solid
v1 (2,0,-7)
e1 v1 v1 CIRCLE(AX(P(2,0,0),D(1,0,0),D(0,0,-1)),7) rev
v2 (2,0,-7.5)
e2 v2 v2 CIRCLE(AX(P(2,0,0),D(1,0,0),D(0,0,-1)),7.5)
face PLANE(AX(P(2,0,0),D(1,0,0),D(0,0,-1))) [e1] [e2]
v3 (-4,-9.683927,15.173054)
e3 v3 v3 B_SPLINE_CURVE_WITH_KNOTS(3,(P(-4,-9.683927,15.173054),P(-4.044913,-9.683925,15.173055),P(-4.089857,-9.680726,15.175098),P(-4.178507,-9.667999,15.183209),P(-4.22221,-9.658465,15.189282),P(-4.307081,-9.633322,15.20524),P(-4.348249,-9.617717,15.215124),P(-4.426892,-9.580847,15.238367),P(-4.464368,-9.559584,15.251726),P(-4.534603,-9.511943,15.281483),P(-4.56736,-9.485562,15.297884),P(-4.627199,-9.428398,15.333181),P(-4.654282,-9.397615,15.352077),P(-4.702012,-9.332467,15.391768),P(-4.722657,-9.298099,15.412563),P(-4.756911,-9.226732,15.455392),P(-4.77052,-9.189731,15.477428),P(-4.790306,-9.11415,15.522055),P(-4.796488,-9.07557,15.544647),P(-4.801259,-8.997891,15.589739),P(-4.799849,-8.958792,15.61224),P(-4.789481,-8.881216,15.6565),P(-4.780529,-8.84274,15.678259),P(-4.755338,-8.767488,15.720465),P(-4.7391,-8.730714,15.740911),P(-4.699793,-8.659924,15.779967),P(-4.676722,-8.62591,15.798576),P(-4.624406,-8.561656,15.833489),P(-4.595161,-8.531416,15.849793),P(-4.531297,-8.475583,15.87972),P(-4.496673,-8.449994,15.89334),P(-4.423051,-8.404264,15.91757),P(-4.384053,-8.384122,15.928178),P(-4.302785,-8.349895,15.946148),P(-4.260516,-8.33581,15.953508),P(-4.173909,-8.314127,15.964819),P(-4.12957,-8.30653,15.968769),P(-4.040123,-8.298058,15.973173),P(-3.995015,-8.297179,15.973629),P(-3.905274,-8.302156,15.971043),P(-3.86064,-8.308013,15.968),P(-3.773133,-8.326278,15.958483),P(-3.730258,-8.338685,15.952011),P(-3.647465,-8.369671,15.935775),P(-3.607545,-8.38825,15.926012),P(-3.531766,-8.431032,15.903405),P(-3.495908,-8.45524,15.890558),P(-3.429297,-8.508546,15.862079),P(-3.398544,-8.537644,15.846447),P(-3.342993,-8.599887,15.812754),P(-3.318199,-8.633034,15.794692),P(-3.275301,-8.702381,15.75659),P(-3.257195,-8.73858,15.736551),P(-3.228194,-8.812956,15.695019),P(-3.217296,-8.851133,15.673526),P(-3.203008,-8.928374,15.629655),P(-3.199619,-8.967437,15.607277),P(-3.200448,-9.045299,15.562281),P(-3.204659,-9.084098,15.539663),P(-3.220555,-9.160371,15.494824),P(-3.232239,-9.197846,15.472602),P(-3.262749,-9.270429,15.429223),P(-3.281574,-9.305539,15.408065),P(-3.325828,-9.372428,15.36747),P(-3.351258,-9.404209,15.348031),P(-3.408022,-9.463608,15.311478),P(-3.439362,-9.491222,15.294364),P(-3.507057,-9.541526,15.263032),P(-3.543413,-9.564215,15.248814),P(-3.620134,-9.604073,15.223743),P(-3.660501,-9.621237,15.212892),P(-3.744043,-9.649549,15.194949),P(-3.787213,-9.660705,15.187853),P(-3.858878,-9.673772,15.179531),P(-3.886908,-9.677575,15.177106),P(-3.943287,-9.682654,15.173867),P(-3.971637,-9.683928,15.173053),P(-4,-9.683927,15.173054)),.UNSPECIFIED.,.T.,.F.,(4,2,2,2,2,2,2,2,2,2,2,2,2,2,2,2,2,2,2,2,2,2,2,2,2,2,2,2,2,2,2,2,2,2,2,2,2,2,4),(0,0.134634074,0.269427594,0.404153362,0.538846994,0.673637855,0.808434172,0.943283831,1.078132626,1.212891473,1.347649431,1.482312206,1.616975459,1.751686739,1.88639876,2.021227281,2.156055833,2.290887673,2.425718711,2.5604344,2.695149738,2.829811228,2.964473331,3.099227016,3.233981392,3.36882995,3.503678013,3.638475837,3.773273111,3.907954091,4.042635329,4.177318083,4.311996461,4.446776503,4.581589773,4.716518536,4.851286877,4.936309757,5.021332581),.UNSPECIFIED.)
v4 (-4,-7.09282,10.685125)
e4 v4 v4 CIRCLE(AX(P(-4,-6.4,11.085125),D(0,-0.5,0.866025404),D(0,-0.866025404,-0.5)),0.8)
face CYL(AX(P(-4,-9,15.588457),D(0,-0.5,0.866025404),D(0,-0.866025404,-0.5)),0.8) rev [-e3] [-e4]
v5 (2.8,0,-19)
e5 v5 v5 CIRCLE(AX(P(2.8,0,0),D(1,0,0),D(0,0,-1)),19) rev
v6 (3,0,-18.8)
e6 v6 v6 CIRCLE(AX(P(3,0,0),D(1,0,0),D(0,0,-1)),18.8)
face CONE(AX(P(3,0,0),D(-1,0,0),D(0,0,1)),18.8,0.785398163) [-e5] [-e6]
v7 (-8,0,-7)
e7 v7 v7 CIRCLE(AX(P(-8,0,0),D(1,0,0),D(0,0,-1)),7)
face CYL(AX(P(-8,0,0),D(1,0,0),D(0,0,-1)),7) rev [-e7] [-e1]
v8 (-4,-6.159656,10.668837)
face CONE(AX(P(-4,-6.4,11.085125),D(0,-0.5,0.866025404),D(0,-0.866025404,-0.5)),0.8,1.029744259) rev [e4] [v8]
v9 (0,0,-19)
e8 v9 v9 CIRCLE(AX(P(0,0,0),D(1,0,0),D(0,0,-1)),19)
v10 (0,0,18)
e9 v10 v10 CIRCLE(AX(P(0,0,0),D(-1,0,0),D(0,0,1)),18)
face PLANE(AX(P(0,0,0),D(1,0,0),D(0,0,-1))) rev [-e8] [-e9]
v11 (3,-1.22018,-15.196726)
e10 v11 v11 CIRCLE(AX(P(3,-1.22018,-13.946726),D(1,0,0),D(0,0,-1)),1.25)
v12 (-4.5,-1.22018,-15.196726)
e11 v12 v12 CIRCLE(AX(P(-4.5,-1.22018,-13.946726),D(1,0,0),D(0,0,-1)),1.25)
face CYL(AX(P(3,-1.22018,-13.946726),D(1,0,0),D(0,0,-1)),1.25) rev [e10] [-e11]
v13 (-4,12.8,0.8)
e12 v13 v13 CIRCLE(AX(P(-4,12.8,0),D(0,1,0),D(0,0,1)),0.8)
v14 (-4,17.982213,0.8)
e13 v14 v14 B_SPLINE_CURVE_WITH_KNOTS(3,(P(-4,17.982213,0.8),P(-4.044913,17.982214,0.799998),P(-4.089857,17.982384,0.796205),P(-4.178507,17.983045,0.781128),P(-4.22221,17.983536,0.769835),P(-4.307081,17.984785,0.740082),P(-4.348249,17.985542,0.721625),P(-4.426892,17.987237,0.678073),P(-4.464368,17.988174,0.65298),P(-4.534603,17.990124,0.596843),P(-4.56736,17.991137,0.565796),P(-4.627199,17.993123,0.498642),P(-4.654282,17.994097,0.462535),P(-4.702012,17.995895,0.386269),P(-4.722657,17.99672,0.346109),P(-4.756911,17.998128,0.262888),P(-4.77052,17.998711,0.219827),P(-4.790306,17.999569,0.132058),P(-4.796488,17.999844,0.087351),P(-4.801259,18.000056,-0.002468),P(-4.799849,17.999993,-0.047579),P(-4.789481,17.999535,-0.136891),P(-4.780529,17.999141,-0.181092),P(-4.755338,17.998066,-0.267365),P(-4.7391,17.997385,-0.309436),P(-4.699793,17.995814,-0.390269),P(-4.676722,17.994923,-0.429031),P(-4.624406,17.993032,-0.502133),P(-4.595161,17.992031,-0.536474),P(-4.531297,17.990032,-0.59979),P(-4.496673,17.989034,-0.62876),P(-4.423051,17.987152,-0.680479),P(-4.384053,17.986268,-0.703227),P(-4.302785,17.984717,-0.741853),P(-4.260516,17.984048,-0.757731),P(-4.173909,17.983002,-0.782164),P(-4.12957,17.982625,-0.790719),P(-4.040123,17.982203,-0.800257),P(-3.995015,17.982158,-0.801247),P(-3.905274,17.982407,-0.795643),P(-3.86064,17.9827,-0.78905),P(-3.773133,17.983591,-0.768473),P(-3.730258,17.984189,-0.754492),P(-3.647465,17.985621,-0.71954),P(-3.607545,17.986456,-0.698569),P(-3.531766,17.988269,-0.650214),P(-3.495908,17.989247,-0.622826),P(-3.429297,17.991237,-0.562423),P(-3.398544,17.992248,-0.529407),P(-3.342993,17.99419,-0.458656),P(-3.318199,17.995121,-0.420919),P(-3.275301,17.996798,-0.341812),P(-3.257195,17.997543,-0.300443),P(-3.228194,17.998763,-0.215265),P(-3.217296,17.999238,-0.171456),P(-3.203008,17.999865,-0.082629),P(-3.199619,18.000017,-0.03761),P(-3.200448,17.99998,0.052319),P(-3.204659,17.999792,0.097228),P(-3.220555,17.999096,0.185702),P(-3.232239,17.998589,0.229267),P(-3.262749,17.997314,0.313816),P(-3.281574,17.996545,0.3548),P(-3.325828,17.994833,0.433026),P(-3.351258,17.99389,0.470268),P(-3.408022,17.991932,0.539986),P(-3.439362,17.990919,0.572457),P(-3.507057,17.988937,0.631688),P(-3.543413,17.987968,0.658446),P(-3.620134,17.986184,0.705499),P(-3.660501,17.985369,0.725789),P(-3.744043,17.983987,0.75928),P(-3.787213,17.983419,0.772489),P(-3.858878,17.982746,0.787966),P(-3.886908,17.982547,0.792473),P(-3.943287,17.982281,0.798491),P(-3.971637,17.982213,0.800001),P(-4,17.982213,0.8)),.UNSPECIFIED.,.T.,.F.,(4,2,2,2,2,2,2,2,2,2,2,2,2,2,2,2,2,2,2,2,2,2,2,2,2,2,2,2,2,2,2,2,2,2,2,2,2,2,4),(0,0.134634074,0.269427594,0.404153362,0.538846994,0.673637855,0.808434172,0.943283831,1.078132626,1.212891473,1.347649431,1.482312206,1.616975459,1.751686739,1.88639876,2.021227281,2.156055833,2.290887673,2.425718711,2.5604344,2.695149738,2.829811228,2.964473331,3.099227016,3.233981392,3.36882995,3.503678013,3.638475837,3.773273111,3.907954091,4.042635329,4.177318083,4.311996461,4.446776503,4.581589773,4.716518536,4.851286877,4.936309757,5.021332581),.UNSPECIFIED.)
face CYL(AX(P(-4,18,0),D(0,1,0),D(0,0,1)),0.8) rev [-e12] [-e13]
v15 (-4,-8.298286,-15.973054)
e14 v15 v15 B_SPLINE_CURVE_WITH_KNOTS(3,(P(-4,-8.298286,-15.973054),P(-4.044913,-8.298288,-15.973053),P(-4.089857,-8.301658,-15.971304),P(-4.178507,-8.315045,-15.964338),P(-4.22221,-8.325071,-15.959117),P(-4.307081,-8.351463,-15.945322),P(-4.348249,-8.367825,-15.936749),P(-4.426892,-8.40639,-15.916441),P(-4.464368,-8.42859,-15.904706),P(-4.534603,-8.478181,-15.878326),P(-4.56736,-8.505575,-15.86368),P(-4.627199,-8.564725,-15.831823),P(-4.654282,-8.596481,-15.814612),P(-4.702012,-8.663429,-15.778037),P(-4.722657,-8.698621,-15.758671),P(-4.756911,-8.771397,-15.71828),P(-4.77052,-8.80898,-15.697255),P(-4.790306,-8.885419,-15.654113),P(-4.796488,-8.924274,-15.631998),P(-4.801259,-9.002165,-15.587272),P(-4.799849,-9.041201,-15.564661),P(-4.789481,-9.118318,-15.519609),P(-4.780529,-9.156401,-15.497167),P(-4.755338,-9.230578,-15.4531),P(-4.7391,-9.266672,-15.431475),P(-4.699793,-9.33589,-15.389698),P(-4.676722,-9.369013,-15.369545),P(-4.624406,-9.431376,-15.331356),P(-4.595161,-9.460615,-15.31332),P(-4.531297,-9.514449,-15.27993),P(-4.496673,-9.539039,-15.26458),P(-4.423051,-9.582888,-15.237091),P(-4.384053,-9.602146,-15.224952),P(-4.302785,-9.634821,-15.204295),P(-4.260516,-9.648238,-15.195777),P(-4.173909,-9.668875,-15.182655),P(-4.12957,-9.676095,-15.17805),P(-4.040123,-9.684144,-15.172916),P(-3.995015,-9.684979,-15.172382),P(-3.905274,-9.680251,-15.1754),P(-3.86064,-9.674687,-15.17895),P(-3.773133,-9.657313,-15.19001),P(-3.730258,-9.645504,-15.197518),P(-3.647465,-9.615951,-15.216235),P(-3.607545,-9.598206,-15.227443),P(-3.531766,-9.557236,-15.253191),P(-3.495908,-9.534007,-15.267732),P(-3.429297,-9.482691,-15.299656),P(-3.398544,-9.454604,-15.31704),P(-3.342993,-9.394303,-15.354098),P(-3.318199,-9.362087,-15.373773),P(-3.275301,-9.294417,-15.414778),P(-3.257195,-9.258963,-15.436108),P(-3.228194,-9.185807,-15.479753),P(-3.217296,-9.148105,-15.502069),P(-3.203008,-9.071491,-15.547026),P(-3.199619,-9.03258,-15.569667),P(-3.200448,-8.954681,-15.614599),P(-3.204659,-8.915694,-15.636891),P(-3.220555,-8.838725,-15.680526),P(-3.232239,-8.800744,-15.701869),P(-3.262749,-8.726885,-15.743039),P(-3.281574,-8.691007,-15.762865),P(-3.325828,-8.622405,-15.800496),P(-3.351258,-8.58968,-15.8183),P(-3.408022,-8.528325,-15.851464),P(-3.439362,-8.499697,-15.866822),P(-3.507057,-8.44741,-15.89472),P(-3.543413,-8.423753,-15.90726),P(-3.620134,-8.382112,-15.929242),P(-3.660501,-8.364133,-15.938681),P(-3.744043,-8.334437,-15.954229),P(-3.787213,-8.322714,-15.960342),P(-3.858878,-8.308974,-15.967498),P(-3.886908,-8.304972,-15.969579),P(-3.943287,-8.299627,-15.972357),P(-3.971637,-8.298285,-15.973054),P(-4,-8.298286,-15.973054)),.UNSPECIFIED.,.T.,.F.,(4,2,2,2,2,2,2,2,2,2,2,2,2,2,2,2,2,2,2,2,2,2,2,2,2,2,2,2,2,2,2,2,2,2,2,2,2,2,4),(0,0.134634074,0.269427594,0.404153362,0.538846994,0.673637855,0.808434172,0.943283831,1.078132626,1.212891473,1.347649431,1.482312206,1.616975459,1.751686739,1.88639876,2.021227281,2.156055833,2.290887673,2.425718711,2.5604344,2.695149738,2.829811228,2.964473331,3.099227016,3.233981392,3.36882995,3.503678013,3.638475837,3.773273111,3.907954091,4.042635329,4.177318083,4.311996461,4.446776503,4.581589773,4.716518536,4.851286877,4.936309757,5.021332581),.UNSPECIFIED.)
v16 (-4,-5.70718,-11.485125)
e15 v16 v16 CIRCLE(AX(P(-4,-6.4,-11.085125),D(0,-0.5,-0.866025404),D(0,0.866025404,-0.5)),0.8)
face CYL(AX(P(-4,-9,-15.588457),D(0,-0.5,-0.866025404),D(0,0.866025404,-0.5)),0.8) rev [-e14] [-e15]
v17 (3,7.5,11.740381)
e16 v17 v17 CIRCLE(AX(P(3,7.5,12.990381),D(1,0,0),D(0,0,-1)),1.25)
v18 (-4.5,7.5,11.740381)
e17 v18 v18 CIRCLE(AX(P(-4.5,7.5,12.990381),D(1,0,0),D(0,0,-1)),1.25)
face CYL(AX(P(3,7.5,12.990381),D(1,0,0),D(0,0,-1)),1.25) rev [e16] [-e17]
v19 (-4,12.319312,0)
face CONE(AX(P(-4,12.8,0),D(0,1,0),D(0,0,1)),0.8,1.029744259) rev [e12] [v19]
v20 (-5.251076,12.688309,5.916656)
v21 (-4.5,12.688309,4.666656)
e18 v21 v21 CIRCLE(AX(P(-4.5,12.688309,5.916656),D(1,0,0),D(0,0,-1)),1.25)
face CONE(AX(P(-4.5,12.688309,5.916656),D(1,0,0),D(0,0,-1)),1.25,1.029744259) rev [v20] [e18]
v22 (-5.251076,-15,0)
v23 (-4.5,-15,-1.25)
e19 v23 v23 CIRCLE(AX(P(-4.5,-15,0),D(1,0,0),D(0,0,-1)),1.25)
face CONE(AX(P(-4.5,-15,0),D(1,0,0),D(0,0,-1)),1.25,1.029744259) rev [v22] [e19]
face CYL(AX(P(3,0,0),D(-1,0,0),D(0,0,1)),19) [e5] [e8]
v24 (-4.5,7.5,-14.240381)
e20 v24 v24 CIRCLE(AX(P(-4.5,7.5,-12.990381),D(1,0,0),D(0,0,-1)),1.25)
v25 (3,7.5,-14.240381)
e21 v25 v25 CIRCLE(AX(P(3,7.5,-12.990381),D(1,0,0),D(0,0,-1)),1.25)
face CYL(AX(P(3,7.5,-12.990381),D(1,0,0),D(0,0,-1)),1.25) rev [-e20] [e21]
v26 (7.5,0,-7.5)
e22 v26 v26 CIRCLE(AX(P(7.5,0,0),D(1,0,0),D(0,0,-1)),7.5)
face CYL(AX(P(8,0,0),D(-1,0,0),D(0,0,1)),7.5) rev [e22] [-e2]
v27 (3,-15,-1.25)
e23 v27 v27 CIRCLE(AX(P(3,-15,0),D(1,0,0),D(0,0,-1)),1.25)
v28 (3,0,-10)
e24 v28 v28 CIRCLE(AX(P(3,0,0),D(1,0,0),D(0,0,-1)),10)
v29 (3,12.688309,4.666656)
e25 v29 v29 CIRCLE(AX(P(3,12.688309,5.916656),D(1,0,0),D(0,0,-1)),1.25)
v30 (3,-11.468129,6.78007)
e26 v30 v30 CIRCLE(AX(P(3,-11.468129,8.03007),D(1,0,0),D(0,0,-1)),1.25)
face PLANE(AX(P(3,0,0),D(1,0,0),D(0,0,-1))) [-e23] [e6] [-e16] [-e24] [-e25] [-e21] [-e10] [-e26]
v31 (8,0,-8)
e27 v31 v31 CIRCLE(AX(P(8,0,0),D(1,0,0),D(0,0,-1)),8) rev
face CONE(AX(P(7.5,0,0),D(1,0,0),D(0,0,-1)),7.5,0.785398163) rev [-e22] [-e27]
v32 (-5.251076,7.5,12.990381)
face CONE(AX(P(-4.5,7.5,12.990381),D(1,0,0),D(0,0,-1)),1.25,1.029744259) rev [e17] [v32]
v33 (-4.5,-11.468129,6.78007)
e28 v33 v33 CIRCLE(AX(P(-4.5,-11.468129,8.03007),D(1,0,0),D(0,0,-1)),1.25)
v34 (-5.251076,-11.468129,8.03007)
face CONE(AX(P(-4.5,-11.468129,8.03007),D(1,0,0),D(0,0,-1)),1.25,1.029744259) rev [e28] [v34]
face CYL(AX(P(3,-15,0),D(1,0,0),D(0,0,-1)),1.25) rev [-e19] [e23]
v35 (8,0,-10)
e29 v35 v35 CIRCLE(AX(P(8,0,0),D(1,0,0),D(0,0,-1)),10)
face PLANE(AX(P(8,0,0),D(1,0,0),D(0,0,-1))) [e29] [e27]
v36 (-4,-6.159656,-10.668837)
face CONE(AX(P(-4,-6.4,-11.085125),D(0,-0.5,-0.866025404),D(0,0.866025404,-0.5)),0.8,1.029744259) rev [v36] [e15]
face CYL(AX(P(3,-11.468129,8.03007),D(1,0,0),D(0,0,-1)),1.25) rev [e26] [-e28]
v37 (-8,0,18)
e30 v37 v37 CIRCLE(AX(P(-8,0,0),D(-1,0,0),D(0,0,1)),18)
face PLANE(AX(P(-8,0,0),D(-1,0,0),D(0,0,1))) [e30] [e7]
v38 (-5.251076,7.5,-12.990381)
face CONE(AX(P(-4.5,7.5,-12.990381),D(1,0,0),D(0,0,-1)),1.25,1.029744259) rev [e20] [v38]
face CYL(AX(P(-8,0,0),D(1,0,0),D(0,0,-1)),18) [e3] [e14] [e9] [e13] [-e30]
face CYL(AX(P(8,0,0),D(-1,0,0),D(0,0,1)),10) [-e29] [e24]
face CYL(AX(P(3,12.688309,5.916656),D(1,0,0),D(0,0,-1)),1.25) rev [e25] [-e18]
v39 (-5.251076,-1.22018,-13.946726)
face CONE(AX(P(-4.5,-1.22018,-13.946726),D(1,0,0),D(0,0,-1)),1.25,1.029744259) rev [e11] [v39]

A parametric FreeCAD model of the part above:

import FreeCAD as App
import Part
import Sketcher
Q = App.Units.Quantity


def edges_at(feature, points):
    """Names of the edges that pass closest to the given points."""
    edges = feature.Shape.Edges
    near = lambda p: min(range(len(edges)), key=lambda i: edges[i].distToShape(Part.Vertex(*p))[0])
    return sorted({f"Edge{near(p) + 1}" for p in points})


def add_polygon(sketch, points):
    """Adds a closed chain of lines whose ends are joined by coincident constraints."""
    first, n = sketch.GeometryCount, len(points)
    for a, b in zip(points, points[1:] + points[:1]):
        sketch.addGeometry(Part.LineSegment(App.Vector(*a, 0), App.Vector(*b, 0)), False)
    for i in range(n):
        sketch.addConstraint(Sketcher.Constraint("Coincident", first + i, 2, first + (i + 1) % n, 1))

doc = App.newDocument("Part")
body = doc.addObject("PartDesign::Body", "Body")

sketch1 = doc.addObject("Sketcher::SketchObject", "Sketch")
body.addObject(sketch1)
sketch1.AttachmentSupport = (doc.YZ_Plane, [""])
sketch1.MapMode = "FlatFace"
sketch1.addGeometry(Part.Circle(App.Vector(0, 0, 0), App.Vector(0, 0, 1), 19), False)
sketch1.addConstraint([
    Sketcher.Constraint("Coincident", 0, 3, -1, 1),
    Sketcher.Constraint("Diameter", 0, Q("38 mm")),
])
pad1 = doc.addObject("PartDesign::Pad", "Pad")
body.addObject(pad1)
pad1.Profile = sketch1
pad1.Length = 3

sketch2 = doc.addObject("Sketcher::SketchObject", "Sketch001")
body.addObject(sketch2)
sketch2.AttachmentSupport = (doc.YZ_Plane, [""])
sketch2.MapMode = "FlatFace"
sketch2.AttachmentOffset = App.Placement(App.Vector(0, 0, 3), App.Rotation())
sketch2.addGeometry([
    Part.Circle(App.Vector(0, 0, 0), App.Vector(0, 0, 1), 10),
    Part.Circle(App.Vector(0, 0, 0), App.Vector(0, 0, 1), 7.5),
], False)
sketch2.addConstraint([
    Sketcher.Constraint("Coincident", 0, 3, -1, 1),
    Sketcher.Constraint("Coincident", 1, 3, -1, 1),
    Sketcher.Constraint("Diameter", 0, Q("20 mm")),
    Sketcher.Constraint("Diameter", 1, Q("15 mm")),
])
pad2 = doc.addObject("PartDesign::Pad", "Pad001")
body.addObject(pad2)
pad2.Profile = sketch2
pad2.Length = 5

sketch3 = doc.addObject("Sketcher::SketchObject", "Sketch002")
body.addObject(sketch3)
sketch3.AttachmentSupport = (doc.YZ_Plane, [""])
sketch3.MapMode = "FlatFace"
sketch3.addGeometry(Part.Circle(App.Vector(0, 0, 0), App.Vector(0, 0, 1), 18), False)
sketch3.addConstraint([
    Sketcher.Constraint("Coincident", 0, 3, -1, 1),
    Sketcher.Constraint("Diameter", 0, Q("36 mm")),
])
pad3 = doc.addObject("PartDesign::Pad", "Pad002")
body.addObject(pad3)
pad3.Profile = sketch3
pad3.Length = 8
pad3.Reversed = True

sketch4 = doc.addObject("Sketcher::SketchObject", "Sketch003")
body.addObject(sketch4)
sketch4.AttachmentSupport = (doc.YZ_Plane, [""])
sketch4.MapMode = "FlatFace"
sketch4.AttachmentOffset = App.Placement(App.Vector(0, 0, -4), App.Rotation())
add_polygon(sketch4, [(12.319312, 0), (18, 0), (18, 0.8), (12.8, 0.8)])
sketch4.addConstraint([
    Sketcher.Constraint("Horizontal", 0),
    Sketcher.Constraint("Vertical", 1),
    Sketcher.Constraint("Horizontal", 2),
    Sketcher.Constraint("PointOnObject", 0, 2, -1),
    Sketcher.Constraint("Angle", 3, Q("-121 deg")),
    Sketcher.Constraint("DistanceX", 2, 2, 2, 1, Q("5.2 mm")),
    Sketcher.Constraint("DistanceY", 1, 1, 1, 2, Q("0.8 mm")),
    Sketcher.Constraint("DistanceX", -1, 1, 0, 2, Q("18 mm")),
])
groove = doc.addObject("PartDesign::Groove", "Groove")
body.addObject(groove)
groove.Profile = sketch4
groove.ReferenceAxis = (sketch4, ["H_Axis"])
groove.Angle = 360
doc.recompute()

polarpattern = doc.addObject("PartDesign::PolarPattern", "PolarPattern")
body.addObject(polarpattern)
polarpattern.Originals = [groove]
polarpattern.Axis = (doc.X_Axis, [""])
polarpattern.Angle = 360
polarpattern.Occurrences = 3
body.Tip = polarpattern

sketch5 = doc.addObject("Sketcher::SketchObject", "Sketch004")
body.addObject(sketch5)
sketch5.AttachmentSupport = (doc.YZ_Plane, [""])
sketch5.MapMode = "FlatFace"
sketch5.AttachmentOffset = App.Placement(App.Vector(0, 0, 3), App.Rotation())
sketch5.addGeometry(Part.Circle(App.Vector(0, 0, 0), App.Vector(0, 0, 1), 7), False)
sketch5.addConstraint([
    Sketcher.Constraint("Coincident", 0, 3, -1, 1),
    Sketcher.Constraint("Diameter", 0, Q("14 mm")),
])
pocket1 = doc.addObject("PartDesign::Pocket", "Pocket")
body.addObject(pocket1)
pocket1.Profile = sketch5
pocket1.Type = "ThroughAll"

sketch6 = doc.addObject("Sketcher::SketchObject", "Sketch005")
body.addObject(sketch6)
sketch6.AttachmentSupport = (doc.YZ_Plane, [""])
sketch6.MapMode = "FlatFace"
sketch6.AttachmentOffset = App.Placement(App.Vector(0, 0, 2), App.Rotation())
sketch6.addGeometry(Part.Circle(App.Vector(0, 0, 0), App.Vector(0, 0, 1), 7.5), False)
sketch6.addConstraint([
    Sketcher.Constraint("Coincident", 0, 3, -1, 1),
    Sketcher.Constraint("Diameter", 0, Q("15 mm")),
])
pocket2 = doc.addObject("PartDesign::Pocket", "Pocket001")
body.addObject(pocket2)
pocket2.Profile = sketch6
pocket2.Length = 1
pocket2.Reversed = True

sketch7 = doc.addObject("Sketcher::SketchObject", "Sketch006")
body.addObject(sketch7)
sketch7.AttachmentSupport = (doc.XZ_Plane, [""])
sketch7.MapMode = "FlatFace"
sketch7.AttachmentOffset = App.Placement(App.Vector(0, 0, 15), App.Rotation())
add_polygon(sketch7, [(-5.251076, 0), (3, 0), (3, -1.25), (-4.5, -1.25)])
sketch7.addConstraint([
    Sketcher.Constraint("Horizontal", 0),
    Sketcher.Constraint("Vertical", 1),
    Sketcher.Constraint("Horizontal", 2),
    Sketcher.Constraint("PointOnObject", 0, 2, -1),
    Sketcher.Constraint("Angle", 3, Q("121 deg")),
    Sketcher.Constraint("DistanceX", 2, 2, 2, 1, Q("7.5 mm")),
    Sketcher.Constraint("DistanceX", -1, 1, 0, 2, Q("3 mm")),
    Sketcher.Constraint("DistanceY", 1, 2, 1, 1, Q("1.25 mm")),
])
groove2 = doc.addObject("PartDesign::Groove", "Groove001")
body.addObject(groove2)
groove2.Profile = sketch7
groove2.ReferenceAxis = (sketch7, ["H_Axis"])
groove2.Angle = 360

sketch8 = doc.addObject("Sketcher::SketchObject", "Sketch007")
body.addObject(sketch8)
sketch8.AttachmentSupport = (doc.XZ_Plane, [""])
sketch8.MapMode = "FlatFace"
sketch8.AttachmentOffset = App.Placement(App.Vector(0, 0, 11.468129), App.Rotation())
add_polygon(sketch8, [(-5.251076, 8.03007), (3, 8.03007), (3, 6.78007), (-4.5, 6.78007)])
sketch8.addGeometry(Part.LineSegment(App.Vector(3, 8.03007, 0), App.Vector(-5.251076, 8.03007, 0)), True)
sketch8.addConstraint([
    Sketcher.Constraint("Horizontal", 0),
    Sketcher.Constraint("Vertical", 1),
    Sketcher.Constraint("Horizontal", 2),
    Sketcher.Constraint("Horizontal", 4),
    Sketcher.Constraint("Coincident", 4, 1, 0, 2),
    Sketcher.Constraint("Equal", 0, 4),
    Sketcher.Constraint("Angle", 3, Q("121 deg")),
    Sketcher.Constraint("DistanceX", 2, 2, 2, 1, Q("7.5 mm")),
    Sketcher.Constraint("DistanceX", -1, 1, 0, 2, Q("3 mm")),
    Sketcher.Constraint("DistanceY", 1, 2, 1, 1, Q("1.25 mm")),
    Sketcher.Constraint("DistanceY", -1, 1, 0, 2, Q("8.03007 mm")),
])
groove3 = doc.addObject("PartDesign::Groove", "Groove002")
body.addObject(groove3)
groove3.Profile = sketch8
groove3.ReferenceAxis = (sketch8, ["Axis0"])
groove3.Angle = 360
doc.recompute()

polarpattern2 = doc.addObject("PartDesign::PolarPattern", "PolarPattern001")
body.addObject(polarpattern2)
polarpattern2.Originals = [groove3]
polarpattern2.Axis = (doc.X_Axis, [""])
polarpattern2.Angle = 360
polarpattern2.Occurrences = 3
body.Tip = polarpattern2
doc.recompute()

polarpattern3 = doc.addObject("PartDesign::PolarPattern", "PolarPattern002")
body.addObject(polarpattern3)
polarpattern3.Originals = [groove2]
polarpattern3.Axis = (doc.X_Axis, [""])
polarpattern3.Angle = 360
polarpattern3.Occurrences = 3
body.Tip = polarpattern3
doc.recompute()

chamfer = doc.addObject("PartDesign::Chamfer", "Chamfer")
body.addObject(chamfer)
chamfer.Base = (polarpattern3, edges_at(polarpattern3, [(8, 0, 7.5)]))
chamfer.Size = 0.5
doc.recompute()

chamfer2 = doc.addObject("PartDesign::Chamfer", "Chamfer001")
body.addObject(chamfer2)
chamfer2.Base = (chamfer, edges_at(chamfer, [(3, 0, 19)]))
chamfer2.Size = 0.2

doc.recompute()
